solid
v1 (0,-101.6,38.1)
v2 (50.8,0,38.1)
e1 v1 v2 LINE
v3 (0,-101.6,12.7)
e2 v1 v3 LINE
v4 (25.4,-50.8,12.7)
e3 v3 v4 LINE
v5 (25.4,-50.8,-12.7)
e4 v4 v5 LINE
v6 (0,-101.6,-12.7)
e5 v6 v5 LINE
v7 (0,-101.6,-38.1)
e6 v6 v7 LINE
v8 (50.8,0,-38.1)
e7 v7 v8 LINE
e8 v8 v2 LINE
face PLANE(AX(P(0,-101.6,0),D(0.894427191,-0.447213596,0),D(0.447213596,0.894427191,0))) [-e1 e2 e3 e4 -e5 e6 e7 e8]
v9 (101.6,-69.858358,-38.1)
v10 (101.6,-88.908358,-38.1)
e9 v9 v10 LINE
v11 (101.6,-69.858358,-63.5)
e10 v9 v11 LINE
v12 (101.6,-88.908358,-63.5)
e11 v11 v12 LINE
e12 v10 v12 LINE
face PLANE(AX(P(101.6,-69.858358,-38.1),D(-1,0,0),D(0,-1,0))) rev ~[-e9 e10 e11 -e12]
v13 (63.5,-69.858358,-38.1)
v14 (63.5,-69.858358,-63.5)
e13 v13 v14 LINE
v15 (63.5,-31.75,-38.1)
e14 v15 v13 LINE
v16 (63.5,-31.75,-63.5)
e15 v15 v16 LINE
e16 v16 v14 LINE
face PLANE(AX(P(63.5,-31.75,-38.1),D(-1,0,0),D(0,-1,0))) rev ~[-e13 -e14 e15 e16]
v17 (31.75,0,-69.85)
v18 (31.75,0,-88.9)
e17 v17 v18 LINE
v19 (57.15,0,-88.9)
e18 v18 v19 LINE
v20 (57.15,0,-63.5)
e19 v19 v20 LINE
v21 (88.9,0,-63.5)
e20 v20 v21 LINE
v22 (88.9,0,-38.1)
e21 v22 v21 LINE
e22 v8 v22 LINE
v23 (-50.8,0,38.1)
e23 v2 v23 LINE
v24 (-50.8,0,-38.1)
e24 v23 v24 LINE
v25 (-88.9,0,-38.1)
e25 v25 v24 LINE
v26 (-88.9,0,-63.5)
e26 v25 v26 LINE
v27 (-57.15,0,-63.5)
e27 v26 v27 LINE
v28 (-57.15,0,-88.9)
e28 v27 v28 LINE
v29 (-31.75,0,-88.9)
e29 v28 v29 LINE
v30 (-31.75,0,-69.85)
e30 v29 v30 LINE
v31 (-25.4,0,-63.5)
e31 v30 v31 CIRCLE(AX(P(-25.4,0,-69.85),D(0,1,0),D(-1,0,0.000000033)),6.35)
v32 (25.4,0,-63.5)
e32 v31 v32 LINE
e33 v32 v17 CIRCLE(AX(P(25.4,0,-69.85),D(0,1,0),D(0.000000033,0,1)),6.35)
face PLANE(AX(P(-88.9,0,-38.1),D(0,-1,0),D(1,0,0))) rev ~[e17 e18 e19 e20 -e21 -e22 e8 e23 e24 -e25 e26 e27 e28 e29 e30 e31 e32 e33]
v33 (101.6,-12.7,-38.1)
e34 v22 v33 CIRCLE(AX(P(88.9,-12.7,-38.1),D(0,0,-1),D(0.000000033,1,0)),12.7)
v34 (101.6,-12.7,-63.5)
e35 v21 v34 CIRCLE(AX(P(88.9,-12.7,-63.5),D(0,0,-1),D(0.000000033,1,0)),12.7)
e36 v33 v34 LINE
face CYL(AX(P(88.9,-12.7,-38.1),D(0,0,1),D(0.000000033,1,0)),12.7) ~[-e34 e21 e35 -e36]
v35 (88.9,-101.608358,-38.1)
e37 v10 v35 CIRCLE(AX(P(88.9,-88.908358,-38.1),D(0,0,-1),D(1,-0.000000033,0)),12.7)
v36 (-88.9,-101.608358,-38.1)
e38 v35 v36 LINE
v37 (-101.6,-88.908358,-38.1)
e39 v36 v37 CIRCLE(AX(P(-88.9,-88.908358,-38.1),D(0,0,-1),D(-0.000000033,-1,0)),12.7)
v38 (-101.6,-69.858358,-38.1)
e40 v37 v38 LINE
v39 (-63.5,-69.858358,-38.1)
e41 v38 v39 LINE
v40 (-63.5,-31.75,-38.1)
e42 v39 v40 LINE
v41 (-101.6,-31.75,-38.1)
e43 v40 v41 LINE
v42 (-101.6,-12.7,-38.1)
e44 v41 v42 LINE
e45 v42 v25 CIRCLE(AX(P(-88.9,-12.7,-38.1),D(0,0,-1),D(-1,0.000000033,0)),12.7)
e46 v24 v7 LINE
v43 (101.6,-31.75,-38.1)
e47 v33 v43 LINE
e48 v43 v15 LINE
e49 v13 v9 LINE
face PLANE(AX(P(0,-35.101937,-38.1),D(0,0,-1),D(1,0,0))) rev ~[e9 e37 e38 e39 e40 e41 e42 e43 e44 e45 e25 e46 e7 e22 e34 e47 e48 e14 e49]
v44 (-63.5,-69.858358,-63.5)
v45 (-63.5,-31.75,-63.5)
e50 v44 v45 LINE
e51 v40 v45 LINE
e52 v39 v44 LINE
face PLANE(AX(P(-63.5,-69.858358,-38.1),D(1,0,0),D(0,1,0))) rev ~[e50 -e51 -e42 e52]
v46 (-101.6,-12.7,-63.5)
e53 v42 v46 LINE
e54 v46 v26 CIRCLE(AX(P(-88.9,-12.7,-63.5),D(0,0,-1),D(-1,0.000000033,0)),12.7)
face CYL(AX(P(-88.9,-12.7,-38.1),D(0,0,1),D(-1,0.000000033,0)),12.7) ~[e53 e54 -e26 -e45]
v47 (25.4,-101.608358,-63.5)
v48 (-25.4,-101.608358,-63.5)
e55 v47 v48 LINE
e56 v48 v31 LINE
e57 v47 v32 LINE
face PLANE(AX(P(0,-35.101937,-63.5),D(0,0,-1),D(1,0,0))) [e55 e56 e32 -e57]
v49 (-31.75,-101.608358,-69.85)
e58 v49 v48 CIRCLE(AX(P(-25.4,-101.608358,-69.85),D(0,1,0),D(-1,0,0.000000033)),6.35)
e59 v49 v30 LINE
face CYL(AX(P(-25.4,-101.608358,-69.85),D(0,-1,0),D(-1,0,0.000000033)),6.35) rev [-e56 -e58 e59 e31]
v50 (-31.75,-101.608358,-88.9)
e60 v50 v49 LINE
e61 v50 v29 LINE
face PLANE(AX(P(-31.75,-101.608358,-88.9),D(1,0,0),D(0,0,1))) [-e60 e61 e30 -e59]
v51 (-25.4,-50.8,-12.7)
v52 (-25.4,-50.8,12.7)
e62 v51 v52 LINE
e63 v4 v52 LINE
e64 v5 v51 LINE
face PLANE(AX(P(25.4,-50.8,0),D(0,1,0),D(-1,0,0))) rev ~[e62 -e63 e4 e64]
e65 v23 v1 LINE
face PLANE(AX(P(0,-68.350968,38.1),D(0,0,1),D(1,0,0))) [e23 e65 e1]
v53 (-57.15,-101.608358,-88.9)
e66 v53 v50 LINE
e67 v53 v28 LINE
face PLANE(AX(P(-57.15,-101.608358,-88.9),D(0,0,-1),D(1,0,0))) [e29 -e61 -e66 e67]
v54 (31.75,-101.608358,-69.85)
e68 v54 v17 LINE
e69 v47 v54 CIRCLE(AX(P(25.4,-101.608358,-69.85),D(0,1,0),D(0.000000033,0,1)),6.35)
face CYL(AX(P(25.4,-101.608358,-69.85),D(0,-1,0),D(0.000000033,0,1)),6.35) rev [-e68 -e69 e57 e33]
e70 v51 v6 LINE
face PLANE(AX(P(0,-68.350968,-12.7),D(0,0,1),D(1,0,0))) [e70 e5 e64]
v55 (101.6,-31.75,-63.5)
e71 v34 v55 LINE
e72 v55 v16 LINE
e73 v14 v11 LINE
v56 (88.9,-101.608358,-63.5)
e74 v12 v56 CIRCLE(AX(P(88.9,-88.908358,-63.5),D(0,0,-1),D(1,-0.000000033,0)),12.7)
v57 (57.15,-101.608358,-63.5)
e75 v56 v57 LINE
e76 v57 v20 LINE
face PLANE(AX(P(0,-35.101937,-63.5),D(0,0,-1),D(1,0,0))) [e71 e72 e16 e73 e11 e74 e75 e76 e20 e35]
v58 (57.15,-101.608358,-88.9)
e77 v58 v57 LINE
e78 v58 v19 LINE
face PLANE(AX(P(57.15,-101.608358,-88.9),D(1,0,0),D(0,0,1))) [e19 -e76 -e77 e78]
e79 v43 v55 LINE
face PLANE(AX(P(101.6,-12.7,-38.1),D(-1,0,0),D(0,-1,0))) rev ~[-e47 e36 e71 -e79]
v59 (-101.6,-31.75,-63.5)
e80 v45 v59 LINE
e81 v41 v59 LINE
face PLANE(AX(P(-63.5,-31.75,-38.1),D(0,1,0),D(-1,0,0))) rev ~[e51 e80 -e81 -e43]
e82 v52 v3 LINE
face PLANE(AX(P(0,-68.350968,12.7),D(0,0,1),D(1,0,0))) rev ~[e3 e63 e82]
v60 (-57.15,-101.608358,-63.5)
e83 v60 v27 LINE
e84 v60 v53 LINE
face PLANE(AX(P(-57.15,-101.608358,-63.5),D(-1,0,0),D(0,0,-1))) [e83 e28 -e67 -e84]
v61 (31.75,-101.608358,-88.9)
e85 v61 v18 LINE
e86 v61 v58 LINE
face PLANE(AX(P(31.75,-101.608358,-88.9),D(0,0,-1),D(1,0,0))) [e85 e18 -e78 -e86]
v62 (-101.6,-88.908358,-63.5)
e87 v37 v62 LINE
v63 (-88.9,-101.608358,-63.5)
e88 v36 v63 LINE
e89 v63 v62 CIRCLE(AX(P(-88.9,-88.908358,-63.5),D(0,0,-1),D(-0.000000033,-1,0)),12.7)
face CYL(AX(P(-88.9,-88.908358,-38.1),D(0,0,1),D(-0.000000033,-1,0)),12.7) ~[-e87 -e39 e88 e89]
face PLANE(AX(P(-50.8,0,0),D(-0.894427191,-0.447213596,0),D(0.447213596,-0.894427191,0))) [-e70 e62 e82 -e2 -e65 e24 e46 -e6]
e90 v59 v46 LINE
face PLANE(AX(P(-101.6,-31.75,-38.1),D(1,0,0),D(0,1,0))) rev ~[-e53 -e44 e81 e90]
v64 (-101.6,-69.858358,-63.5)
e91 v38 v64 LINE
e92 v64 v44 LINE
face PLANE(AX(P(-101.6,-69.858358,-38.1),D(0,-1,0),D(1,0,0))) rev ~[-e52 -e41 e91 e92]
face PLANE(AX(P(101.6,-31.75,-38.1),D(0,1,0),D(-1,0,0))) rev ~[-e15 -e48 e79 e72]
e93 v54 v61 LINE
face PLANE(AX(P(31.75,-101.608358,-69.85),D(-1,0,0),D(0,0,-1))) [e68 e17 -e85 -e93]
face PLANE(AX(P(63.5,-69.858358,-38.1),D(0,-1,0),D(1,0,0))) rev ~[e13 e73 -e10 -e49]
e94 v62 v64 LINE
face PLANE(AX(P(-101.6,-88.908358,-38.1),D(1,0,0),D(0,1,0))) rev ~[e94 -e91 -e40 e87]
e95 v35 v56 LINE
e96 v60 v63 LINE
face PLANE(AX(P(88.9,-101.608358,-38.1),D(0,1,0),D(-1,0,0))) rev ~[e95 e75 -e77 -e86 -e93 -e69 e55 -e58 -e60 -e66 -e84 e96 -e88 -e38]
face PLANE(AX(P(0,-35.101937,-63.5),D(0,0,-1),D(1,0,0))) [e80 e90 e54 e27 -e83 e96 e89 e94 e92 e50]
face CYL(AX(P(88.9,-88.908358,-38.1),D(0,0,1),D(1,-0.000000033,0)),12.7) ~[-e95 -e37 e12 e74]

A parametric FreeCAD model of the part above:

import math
import FreeCAD as App
import Part
import Sketcher

V = App.Vector
Q = App.Units.Quantity

doc = App.newDocument("Part")
body = doc.addObject("PartDesign::Body", "Body")

# Sketch on XY plane
sketch1 = body.newObject("Sketcher::SketchObject", "Sketch")
sketch1.AttachmentSupport = (doc.getObject("XY_Plane"), [""])
sketch1.MapMode = "FlatFace"
sketch1.addGeometry([
    Part.LineSegment(V(0, -102, 0), V(51, 0, 0)),
    Part.LineSegment(V(51, 0, 0), V(-51, 0, 0)),
    Part.LineSegment(V(-51, 0, 0), V(0, -102, 0)),
], False)
sketch1.addConstraint([
    Sketcher.Constraint("Coincident", 0, 2, 1, 1),
    Sketcher.Constraint("Coincident", 1, 2, 2, 1),
    Sketcher.Constraint("Coincident", 2, 2, 0, 1),
    Sketcher.Constraint("Horizontal", 1),
    Sketcher.Constraint("Symmetric", 0, 2, 1, 2, -1, 1),
    Sketcher.Constraint("PointOnObject", 2, 2, -2),
    Sketcher.Constraint("DistanceX", 1, 2, 1, 1, Q("4 in")),
    Sketcher.Constraint("DistanceY", 2, 2, -1, 1, Q("4 in")),
])
pad1 = body.newObject("PartDesign::Pad", "Pad")
pad1.Profile = sketch1
pad1.Length = Q("3 in")
pad1.Midplane = True

# Sketch on XY plane
sketch2 = body.newObject("Sketcher::SketchObject", "Sketch001")
sketch2.AttachmentSupport = (doc.getObject("XY_Plane"), [""])
sketch2.MapMode = "FlatFace"
sketch2.addGeometry([
    Part.LineSegment(V(25, -51, 0), V(-25, -51, 0)),
    Part.LineSegment(V(-25, -51, 0), V(0, -102, 0)),
    Part.LineSegment(V(0, -102, 0), V(25, -51, 0)),
], False)
sketch2.addConstraint([
    Sketcher.Constraint("Coincident", 0, 2, 1, 1),
    Sketcher.Constraint("Coincident", 1, 2, 2, 1),
    Sketcher.Constraint("Coincident", 2, 2, 0, 1),
    Sketcher.Constraint("Horizontal", 0),
    Sketcher.Constraint("PointOnObject", 1, 2, -2),
    Sketcher.Constraint("Equal", 1, 2),
    Sketcher.Constraint("DistanceX", 0, 2, 0, 1, Q("2 in")),
    Sketcher.Constraint("DistanceY", 0, 2, -1, 1, Q("2 in")),
    Sketcher.Constraint("DistanceY", 1, 2, -1, 1, Q("4 in")),
])
pocket1 = body.newObject("PartDesign::Pocket", "Pocket")
pocket1.Profile = sketch2
pocket1.Length = Q("1 in")
pocket1.Midplane = True

# Sketch on XY plane
sketch3 = body.newObject("Sketcher::SketchObject", "Sketch002")
sketch3.AttachmentSupport = (doc.getObject("XY_Plane"), [""])
sketch3.MapMode = "FlatFace"
sketch3.AttachmentOffset = App.Placement(V(0, 0, -1.5 * 25.4), App.Rotation())
sketch3.addGeometry([
    Part.ArcOfCircle(Part.Circle(V(89, -13, 0), V(0, 0, 1), 13), math.radians(0), math.radians(90)),  # 0
    Part.LineSegment(V(102, -13, 0), V(102, -32, 0)),  # 1
    Part.LineSegment(V(102, -32, 0), V(64, -32, 0)),  # 2
    Part.LineSegment(V(64, -32, 0), V(64, -70, 0)),  # 3
    Part.LineSegment(V(64, -70, 0), V(102, -70, 0)),  # 4
    Part.LineSegment(V(102, -70, 0), V(102, -89, 0)),  # 5
    Part.ArcOfCircle(Part.Circle(V(89, -89, 0), V(0, 0, 1), 13), math.radians(-90), math.radians(0)),  # 6
    Part.LineSegment(V(89, -102, 0), V(-89, -102, 0)),  # 7
    Part.ArcOfCircle(Part.Circle(V(-89, -89, 0), V(0, 0, 1), 13), math.radians(-180), math.radians(-90)),  # 8
    Part.LineSegment(V(-102, -89, 0), V(-102, -70, 0)),  # 9
    Part.LineSegment(V(-102, -70, 0), V(-64, -70, 0)),  # 10
    Part.LineSegment(V(-64, -70, 0), V(-64, -32, 0)),  # 11
    Part.LineSegment(V(-64, -32, 0), V(-102, -32, 0)),  # 12
    Part.LineSegment(V(-102, -32, 0), V(-102, -13, 0)),  # 13
    Part.ArcOfCircle(Part.Circle(V(-89, -13, 0), V(0, 0, 1), 13), math.radians(90), math.radians(180)),  # 14
    Part.LineSegment(V(-89, 0, 0), V(89, 0, 0)),  # 15
], False)
sketch3.addConstraint([
    Sketcher.Constraint("Tangent", 0, 1, 1, 1),
    Sketcher.Constraint("Coincident", 1, 2, 2, 1),
    Sketcher.Constraint("Coincident", 2, 2, 3, 1),
    Sketcher.Constraint("Coincident", 3, 2, 4, 1),
    Sketcher.Constraint("Coincident", 4, 2, 5, 1),
    Sketcher.Constraint("Tangent", 5, 2, 6, 2),
    Sketcher.Constraint("Tangent", 6, 1, 7, 1),
    Sketcher.Constraint("Tangent", 7, 2, 8, 2),
    Sketcher.Constraint("Tangent", 8, 1, 9, 1),
    Sketcher.Constraint("Coincident", 9, 2, 10, 1),
    Sketcher.Constraint("Coincident", 10, 2, 11, 1),
    Sketcher.Constraint("Coincident", 11, 2, 12, 1),
    Sketcher.Constraint("Coincident", 12, 2, 13, 1),
    Sketcher.Constraint("Tangent", 13, 2, 14, 2),
    Sketcher.Constraint("Tangent", 14, 1, 15, 1),
    Sketcher.Constraint("Tangent", 15, 2, 0, 2),
    Sketcher.Constraint("Vertical", 1),
    Sketcher.Constraint("Horizontal", 2),
    Sketcher.Constraint("Vertical", 3),
    Sketcher.Constraint("Horizontal", 4),
    Sketcher.Constraint("Vertical", 5),
    Sketcher.Constraint("Horizontal", 7),
    Sketcher.Constraint("Vertical", 9),
    Sketcher.Constraint("Horizontal", 10),
    Sketcher.Constraint("Vertical", 11),
    Sketcher.Constraint("Horizontal", 12),
    Sketcher.Constraint("Vertical", 13),
    Sketcher.Constraint("Horizontal", 15),
    Sketcher.Constraint("Equal", 0, 6),
    Sketcher.Constraint("Equal", 6, 8),
    Sketcher.Constraint("Equal", 8, 14),
    Sketcher.Constraint("Symmetric", 14, 1, 15, 2, -1, 1),
    Sketcher.Constraint("Symmetric", 4, 2, 9, 2, -2),
    Sketcher.Constraint("Symmetric", 2, 2, 11, 2, -2),
    Sketcher.Constraint("Vertical", 0, 3, 6, 3),
    Sketcher.Constraint("Equal", 1, 5),
    Sketcher.Constraint("Radius", 0, Q("0.5 in")),
    Sketcher.Constraint("DistanceX", 7, 2, 7, 1, Q("7 in")),
    Sketcher.Constraint("DistanceX", 2, 2, 2, 1, Q("1.5 in")),
    Sketcher.Constraint("DistanceY", 1, 2, 1, 1, Q("0.75 in")),
    Sketcher.Constraint("DistanceY", 3, 2, 3, 1, Q("38.108358 mm")),
])
pad2 = body.newObject("PartDesign::Pad", "Pad001")
pad2.Profile = sketch3
pad2.Length = Q("1 in")
pad2.Reversed = True

# Sketch on XZ plane
sketch4 = body.newObject("Sketcher::SketchObject", "Sketch003")
sketch4.AttachmentSupport = (doc.getObject("XZ_Plane"), [""])
sketch4.MapMode = "FlatFace"
sketch4.AttachmentOffset = App.Placement(V(0, 0, 101.608358), App.Rotation())
sketch4.addGeometry([
    Part.LineSegment(V(-57, -64, 0), V(-57, -89, 0)),  # 0
    Part.LineSegment(V(-57, -89, 0), V(-32, -89, 0)),  # 1
    Part.LineSegment(V(-32, -89, 0), V(-32, -70, 0)),  # 2
    Part.ArcOfCircle(Part.Circle(V(-25, -70, 0), V(0, 0, 1), 6), math.radians(90), math.radians(180)),  # 3
    Part.LineSegment(V(-25, -64, 0), V(-57, -64, 0)),  # 4
    Part.ArcOfCircle(Part.Circle(V(25, -70, 0), V(0, 0, 1), 6), math.radians(0), math.radians(90)),  # 5
    Part.LineSegment(V(32, -70, 0), V(32, -89, 0)),  # 6
    Part.LineSegment(V(32, -89, 0), V(57, -89, 0)),  # 7
    Part.LineSegment(V(57, -89, 0), V(57, -64, 0)),  # 8
    Part.LineSegment(V(57, -64, 0), V(25, -64, 0)),  # 9
], False)
sketch4.addConstraint([
    Sketcher.Constraint("Coincident", 0, 2, 1, 1),
    Sketcher.Constraint("Coincident", 1, 2, 2, 1),
    Sketcher.Constraint("Tangent", 2, 2, 3, 2),
    Sketcher.Constraint("Tangent", 3, 1, 4, 1),
    Sketcher.Constraint("Coincident", 4, 2, 0, 1),
    Sketcher.Constraint("Tangent", 5, 1, 6, 1),
    Sketcher.Constraint("Coincident", 6, 2, 7, 1),
    Sketcher.Constraint("Coincident", 7, 2, 8, 1),
    Sketcher.Constraint("Coincident", 8, 2, 9, 1),
    Sketcher.Constraint("Tangent", 9, 2, 5, 2),
    Sketcher.Constraint("Vertical", 0),
    Sketcher.Constraint("Horizontal", 1),
    Sketcher.Constraint("Vertical", 2),
    Sketcher.Constraint("Horizontal", 4),
    Sketcher.Constraint("Vertical", 6),
    Sketcher.Constraint("Horizontal", 7),
    Sketcher.Constraint("Vertical", 8),
    Sketcher.Constraint("Horizontal", 9),
    Sketcher.Constraint("Equal", 3, 5),
    Sketcher.Constraint("Symmetric", 3, 3, 5, 3, -2),
    Sketcher.Constraint("Symmetric", 0, 2, 7, 2, -2),
    Sketcher.Constraint("Equal", 7, 0),
    Sketcher.Constraint("DistanceX", 1, 1, 1, 2, Q("1 in")),
    Sketcher.Constraint("Radius", 3, Q("0.25 in")),
    Sketcher.Constraint("DistanceX", 3, 3, -1, 1, Q("1 in")),
    Sketcher.Constraint("DistanceY", 0, 2, -1, 1, Q("3.5 in")),
])
pad3 = body.newObject("PartDesign::Pad", "Pad002")
pad3.Profile = sketch4
pad3.Length = 101.608358
pad3.Reversed = True

doc.recompute()
